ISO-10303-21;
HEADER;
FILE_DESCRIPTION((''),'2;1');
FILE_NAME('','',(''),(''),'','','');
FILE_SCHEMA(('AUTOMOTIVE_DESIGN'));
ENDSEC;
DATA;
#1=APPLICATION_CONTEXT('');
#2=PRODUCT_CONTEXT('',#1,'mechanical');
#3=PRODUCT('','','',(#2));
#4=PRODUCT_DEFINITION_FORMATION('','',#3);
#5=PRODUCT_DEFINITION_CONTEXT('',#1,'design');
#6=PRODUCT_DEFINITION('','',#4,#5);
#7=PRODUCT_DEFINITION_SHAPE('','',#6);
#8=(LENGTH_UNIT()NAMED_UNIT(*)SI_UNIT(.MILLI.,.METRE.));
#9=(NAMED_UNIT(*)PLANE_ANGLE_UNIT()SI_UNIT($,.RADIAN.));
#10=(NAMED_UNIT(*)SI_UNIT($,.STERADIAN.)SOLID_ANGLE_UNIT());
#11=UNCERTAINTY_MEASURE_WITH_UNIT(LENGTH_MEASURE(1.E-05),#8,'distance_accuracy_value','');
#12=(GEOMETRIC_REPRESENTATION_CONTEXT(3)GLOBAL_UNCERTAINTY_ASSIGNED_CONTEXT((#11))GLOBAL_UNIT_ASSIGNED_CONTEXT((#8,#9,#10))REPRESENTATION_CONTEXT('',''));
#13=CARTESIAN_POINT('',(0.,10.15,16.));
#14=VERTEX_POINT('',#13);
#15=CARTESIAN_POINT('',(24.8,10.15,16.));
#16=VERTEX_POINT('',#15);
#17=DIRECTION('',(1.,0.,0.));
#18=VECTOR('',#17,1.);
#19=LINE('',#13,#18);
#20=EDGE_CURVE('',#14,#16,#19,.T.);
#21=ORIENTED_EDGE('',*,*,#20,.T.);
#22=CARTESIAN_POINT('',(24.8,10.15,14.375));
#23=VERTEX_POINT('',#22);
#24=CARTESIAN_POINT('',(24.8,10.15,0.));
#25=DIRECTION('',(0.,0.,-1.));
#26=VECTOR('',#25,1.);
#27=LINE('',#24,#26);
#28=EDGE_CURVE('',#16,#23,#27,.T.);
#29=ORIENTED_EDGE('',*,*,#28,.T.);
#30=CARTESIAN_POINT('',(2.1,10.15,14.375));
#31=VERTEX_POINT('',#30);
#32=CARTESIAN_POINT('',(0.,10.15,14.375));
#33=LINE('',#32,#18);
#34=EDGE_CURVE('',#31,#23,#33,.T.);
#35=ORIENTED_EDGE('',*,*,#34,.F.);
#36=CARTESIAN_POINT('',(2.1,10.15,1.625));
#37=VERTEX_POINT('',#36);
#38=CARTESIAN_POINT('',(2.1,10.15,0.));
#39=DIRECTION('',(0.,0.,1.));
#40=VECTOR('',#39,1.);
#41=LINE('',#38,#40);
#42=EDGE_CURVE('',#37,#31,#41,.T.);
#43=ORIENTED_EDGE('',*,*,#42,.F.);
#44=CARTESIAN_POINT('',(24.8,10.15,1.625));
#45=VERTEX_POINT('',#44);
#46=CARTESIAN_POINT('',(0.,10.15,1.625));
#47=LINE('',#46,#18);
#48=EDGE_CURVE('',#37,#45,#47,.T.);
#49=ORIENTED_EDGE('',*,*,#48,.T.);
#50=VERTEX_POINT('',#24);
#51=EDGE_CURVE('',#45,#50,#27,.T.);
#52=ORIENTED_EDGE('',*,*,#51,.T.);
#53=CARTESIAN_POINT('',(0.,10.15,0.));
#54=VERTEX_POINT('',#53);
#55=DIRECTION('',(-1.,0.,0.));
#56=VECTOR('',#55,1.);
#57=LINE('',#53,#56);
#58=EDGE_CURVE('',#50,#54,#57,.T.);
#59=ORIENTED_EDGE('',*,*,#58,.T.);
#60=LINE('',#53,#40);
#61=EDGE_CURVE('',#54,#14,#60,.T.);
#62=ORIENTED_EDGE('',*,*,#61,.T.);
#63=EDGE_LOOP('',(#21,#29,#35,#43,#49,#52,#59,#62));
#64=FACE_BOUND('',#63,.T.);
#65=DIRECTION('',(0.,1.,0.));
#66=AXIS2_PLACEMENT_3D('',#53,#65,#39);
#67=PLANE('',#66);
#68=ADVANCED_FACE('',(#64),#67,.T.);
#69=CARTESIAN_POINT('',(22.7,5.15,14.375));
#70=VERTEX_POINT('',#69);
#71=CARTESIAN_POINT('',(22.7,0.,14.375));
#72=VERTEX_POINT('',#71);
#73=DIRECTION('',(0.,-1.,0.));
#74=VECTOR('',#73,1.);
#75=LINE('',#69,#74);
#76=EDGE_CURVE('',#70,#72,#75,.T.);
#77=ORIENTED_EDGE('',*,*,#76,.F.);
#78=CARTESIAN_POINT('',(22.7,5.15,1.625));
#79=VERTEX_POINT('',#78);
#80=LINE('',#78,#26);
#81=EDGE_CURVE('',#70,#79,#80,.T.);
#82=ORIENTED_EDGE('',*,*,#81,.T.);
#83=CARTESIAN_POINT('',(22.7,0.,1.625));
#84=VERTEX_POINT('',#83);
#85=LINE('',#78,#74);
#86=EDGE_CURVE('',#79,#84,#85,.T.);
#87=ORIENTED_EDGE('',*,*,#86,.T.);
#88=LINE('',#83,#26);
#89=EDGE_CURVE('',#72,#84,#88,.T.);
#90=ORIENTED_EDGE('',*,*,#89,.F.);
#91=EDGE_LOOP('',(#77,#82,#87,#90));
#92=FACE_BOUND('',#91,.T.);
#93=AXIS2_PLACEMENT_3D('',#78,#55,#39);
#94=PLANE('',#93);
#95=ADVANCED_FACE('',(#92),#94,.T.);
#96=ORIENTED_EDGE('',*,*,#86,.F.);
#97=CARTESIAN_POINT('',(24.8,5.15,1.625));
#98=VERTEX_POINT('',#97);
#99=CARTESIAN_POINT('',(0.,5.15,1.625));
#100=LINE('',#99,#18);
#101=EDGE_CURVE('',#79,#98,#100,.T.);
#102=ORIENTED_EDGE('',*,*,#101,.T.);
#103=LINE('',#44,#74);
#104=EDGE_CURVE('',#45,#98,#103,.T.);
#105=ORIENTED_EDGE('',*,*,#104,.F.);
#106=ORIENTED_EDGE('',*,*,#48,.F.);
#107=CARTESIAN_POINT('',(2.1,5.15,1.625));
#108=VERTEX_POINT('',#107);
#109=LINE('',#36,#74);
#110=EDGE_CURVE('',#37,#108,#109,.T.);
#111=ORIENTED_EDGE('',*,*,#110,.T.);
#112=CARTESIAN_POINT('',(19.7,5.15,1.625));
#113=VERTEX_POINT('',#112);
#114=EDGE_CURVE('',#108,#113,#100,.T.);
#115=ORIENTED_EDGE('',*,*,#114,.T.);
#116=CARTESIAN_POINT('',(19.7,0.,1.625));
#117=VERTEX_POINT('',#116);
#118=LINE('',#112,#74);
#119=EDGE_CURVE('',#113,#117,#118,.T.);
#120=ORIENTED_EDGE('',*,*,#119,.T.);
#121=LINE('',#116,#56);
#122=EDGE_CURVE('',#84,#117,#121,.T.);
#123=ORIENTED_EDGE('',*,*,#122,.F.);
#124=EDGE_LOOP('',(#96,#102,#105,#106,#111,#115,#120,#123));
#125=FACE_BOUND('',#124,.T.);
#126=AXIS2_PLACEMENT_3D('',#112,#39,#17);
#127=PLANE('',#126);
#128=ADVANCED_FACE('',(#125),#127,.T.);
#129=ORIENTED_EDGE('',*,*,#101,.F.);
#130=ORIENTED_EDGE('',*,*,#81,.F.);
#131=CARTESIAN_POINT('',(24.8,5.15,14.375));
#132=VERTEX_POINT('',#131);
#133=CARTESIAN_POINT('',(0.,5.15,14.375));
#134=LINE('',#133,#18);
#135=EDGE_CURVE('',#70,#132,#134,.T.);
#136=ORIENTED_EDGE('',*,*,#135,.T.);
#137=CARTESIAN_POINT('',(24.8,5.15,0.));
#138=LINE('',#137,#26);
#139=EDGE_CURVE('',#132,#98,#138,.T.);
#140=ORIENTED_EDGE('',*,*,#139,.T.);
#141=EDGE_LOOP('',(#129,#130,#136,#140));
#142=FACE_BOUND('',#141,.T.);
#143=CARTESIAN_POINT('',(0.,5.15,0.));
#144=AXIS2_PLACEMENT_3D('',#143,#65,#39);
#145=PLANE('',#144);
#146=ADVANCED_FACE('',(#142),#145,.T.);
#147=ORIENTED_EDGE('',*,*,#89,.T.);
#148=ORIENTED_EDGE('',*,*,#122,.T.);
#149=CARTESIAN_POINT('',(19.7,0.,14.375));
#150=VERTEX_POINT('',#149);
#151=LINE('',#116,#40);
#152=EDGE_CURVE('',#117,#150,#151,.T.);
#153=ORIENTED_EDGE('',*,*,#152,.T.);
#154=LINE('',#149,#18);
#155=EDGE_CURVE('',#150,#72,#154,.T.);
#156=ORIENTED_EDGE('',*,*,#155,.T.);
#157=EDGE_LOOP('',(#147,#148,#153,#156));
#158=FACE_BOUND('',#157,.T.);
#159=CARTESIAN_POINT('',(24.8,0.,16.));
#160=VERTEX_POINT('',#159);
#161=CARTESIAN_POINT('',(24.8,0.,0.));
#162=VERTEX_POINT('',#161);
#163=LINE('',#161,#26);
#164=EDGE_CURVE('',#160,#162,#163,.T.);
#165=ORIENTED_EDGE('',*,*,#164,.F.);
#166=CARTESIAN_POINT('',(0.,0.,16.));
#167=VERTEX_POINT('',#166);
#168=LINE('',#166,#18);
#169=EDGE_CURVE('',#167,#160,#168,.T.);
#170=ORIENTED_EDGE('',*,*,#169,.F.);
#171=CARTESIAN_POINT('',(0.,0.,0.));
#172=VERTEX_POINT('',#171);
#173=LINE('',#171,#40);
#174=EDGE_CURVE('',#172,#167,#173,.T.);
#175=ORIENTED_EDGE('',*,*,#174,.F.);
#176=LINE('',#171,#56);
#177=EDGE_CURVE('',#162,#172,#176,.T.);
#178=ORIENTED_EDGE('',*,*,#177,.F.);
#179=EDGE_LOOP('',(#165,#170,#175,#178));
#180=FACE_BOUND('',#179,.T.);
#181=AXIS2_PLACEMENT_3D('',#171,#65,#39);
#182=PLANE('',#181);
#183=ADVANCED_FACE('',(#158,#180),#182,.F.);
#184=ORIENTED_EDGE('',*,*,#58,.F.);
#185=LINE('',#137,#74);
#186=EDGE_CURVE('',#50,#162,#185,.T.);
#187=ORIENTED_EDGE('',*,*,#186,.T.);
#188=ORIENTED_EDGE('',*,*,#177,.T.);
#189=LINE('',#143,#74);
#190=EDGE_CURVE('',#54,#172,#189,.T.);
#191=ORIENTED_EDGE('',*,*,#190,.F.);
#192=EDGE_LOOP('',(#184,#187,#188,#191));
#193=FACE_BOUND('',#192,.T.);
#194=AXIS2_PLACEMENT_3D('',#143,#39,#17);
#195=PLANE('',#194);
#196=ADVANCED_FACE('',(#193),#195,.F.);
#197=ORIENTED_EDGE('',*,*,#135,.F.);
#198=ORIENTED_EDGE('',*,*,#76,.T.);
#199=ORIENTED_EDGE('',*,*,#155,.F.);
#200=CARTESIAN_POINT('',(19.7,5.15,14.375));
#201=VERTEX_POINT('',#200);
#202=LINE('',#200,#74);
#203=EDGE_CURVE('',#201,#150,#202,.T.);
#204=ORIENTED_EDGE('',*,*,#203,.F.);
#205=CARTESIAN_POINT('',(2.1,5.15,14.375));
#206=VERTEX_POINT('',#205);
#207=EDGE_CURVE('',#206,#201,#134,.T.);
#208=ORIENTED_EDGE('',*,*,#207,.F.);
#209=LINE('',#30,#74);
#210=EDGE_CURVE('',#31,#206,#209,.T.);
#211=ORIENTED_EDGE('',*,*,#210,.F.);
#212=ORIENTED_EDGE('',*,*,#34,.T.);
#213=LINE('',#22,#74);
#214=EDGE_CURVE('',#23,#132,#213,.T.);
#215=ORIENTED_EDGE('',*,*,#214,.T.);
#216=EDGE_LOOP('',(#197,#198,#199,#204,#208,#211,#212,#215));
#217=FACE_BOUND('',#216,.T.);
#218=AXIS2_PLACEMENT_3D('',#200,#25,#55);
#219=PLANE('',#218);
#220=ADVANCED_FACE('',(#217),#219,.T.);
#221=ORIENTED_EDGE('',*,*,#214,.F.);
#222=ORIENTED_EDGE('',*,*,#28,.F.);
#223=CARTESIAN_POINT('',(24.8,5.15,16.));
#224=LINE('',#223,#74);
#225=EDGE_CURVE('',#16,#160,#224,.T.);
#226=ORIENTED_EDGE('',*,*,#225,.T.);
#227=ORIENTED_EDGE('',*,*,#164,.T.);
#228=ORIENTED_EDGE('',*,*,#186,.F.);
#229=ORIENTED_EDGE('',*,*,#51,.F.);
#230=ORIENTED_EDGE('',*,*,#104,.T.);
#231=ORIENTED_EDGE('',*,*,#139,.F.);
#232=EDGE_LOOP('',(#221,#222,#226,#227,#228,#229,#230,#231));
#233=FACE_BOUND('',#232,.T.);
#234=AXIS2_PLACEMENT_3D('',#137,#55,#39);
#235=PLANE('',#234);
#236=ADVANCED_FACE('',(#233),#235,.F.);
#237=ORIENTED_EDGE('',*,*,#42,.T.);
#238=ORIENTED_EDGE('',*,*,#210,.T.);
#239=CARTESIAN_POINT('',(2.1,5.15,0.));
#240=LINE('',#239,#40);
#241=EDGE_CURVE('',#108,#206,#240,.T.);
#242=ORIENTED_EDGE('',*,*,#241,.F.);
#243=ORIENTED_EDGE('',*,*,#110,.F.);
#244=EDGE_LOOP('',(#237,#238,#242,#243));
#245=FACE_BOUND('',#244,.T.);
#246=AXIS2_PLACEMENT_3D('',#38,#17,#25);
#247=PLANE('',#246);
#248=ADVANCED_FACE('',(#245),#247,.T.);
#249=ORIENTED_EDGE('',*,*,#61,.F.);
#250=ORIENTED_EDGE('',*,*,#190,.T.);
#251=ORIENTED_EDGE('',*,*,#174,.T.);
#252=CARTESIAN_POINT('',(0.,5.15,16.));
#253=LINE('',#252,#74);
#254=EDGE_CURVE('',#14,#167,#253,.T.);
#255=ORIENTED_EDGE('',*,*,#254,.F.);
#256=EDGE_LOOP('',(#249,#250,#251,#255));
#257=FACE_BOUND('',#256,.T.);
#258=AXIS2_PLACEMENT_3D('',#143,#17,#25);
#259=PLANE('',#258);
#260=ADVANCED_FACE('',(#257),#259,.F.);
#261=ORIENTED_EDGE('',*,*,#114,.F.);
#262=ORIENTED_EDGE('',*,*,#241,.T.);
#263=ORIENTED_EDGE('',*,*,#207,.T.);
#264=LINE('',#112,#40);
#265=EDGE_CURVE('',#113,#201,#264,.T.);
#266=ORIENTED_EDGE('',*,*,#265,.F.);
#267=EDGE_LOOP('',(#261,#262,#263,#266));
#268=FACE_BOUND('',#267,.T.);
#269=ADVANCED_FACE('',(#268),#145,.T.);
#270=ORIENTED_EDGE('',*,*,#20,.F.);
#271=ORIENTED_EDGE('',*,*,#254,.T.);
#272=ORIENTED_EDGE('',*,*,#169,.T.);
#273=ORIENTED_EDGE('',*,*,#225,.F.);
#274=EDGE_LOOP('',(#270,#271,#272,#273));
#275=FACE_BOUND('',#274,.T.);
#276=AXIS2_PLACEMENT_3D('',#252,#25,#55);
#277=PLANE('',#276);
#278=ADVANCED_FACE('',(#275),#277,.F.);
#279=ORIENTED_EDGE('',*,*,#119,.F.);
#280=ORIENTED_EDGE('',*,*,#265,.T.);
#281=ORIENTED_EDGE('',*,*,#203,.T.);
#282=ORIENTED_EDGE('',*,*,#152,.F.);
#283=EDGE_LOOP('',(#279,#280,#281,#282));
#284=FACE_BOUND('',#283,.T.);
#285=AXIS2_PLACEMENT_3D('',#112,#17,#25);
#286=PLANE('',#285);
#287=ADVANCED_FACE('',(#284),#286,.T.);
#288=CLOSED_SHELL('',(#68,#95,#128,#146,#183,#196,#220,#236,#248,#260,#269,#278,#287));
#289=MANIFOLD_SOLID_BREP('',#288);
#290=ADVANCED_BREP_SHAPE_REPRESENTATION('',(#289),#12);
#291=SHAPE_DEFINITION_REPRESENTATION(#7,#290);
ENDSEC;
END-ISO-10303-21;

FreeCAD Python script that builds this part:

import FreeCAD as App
import Part
import Sketcher
from FreeCAD import Vector
Q = App.Units.Quantity

doc = App.newDocument("Part")
body = doc.addObject("PartDesign::Body", "Body")

# Sketch on XZ plane
sketch1 = body.newObject("Sketcher::SketchObject", "Sketch")
sketch1.AttachmentSupport = (doc.getObject("XZ_Plane"), [""])
sketch1.MapMode = "FlatFace"
sketch1.addGeometry(Part.LineSegment(Vector(0, 0, 0), Vector(0, 16, 0)), False)
sketch1.addGeometry(Part.LineSegment(Vector(0, 16, 0), Vector(24.8, 16, 0)), False)
sketch1.addGeometry(Part.LineSegment(Vector(24.8, 16, 0), Vector(24.8, 0, 0)), False)
sketch1.addGeometry(Part.LineSegment(Vector(24.8, 0, 0), Vector(0, 0, 0)), False)
sketch1.addGeometry(Part.LineSegment(Vector(22.7, 14.4, 0), Vector(19.7, 14.4, 0)), False)
sketch1.addGeometry(Part.LineSegment(Vector(19.7, 14.4, 0), Vector(19.7, 1.6, 0)), False)
sketch1.addGeometry(Part.LineSegment(Vector(19.7, 1.6, 0), Vector(22.7, 1.6, 0)), False)
sketch1.addGeometry(Part.LineSegment(Vector(22.7, 1.6, 0), Vector(22.7, 14.4, 0)), False)
sketch1.addConstraint(Sketcher.Constraint("Coincident", 0, 2, 1, 1))
sketch1.addConstraint(Sketcher.Constraint("Coincident", 1, 2, 2, 1))
sketch1.addConstraint(Sketcher.Constraint("Coincident", 2, 2, 3, 1))
sketch1.addConstraint(Sketcher.Constraint("Coincident", 3, 2, 0, 1))
sketch1.addConstraint(Sketcher.Constraint("Coincident", 4, 2, 5, 1))
sketch1.addConstraint(Sketcher.Constraint("Coincident", 5, 2, 6, 1))
sketch1.addConstraint(Sketcher.Constraint("Coincident", 6, 2, 7, 1))
sketch1.addConstraint(Sketcher.Constraint("Coincident", 7, 2, 4, 1))
sketch1.addConstraint(Sketcher.Constraint("Vertical", 0))
sketch1.addConstraint(Sketcher.Constraint("Horizontal", 1))
sketch1.addConstraint(Sketcher.Constraint("Vertical", 2))
sketch1.addConstraint(Sketcher.Constraint("Horizontal", 3))
sketch1.addConstraint(Sketcher.Constraint("Horizontal", 4))
sketch1.addConstraint(Sketcher.Constraint("Vertical", 5))
sketch1.addConstraint(Sketcher.Constraint("Horizontal", 6))
sketch1.addConstraint(Sketcher.Constraint("Vertical", 7))
sketch1.addConstraint(Sketcher.Constraint("Coincident", 3, 2, -1, 1))
sketch1.addConstraint(Sketcher.Constraint("DistanceX", 4, 2, 4, 1, Q("3 mm")))
sketch1.addConstraint(Sketcher.Constraint("DistanceY", 0, 1, 0, 2, Q("16 mm")))
sketch1.addConstraint(Sketcher.Constraint("DistanceX", 1, 1, 1, 2, Q("24.8 mm")))
sketch1.addConstraint(Sketcher.Constraint("DistanceY", 5, 2, 5, 1, Q("12.75 mm")))
sketch1.addConstraint(Sketcher.Constraint("DistanceX", -1, 1, 4, 2, Q("19.7 mm")))
sketch1.addConstraint(Sketcher.Constraint("DistanceY", -1, 1, 4, 2, Q("14.375 mm")))
pad1 = body.newObject("PartDesign::Pad", "Pad")
pad1.Profile = sketch1
pad1.Length = 5.15
pad1.Reversed = True

# Sketch on XZ plane
sketch2 = body.newObject("Sketcher::SketchObject", "Sketch001")
sketch2.AttachmentSupport = (doc.getObject("XZ_Plane"), [""])
sketch2.MapMode = "FlatFace"
sketch2.AttachmentOffset = App.Placement(Vector(0, 0, -5.15), App.Rotation())
sketch2.addGeometry(Part.LineSegment(Vector(2.1, 1.6, 0), Vector(24.8, 1.6, 0)), False)
sketch2.addGeometry(Part.LineSegment(Vector(24.8, 1.6, 0), Vector(24.8, 0, 0)), False)
sketch2.addGeometry(Part.LineSegment(Vector(24.8, 0, 0), Vector(0, 0, 0)), False)
sketch2.addGeometry(Part.LineSegment(Vector(0, 0, 0), Vector(0, 16, 0)), False)
sketch2.addGeometry(Part.LineSegment(Vector(0, 16, 0), Vector(24.8, 16, 0)), False)
sketch2.addGeometry(Part.LineSegment(Vector(24.8, 16, 0), Vector(24.8, 14.4, 0)), False)
sketch2.addGeometry(Part.LineSegment(Vector(24.8, 14.4, 0), Vector(2.1, 14.4, 0)), False)
sketch2.addGeometry(Part.LineSegment(Vector(2.1, 14.4, 0), Vector(2.1, 1.6, 0)), False)
sketch2.addConstraint(Sketcher.Constraint("Coincident", 0, 2, 1, 1))
sketch2.addConstraint(Sketcher.Constraint("Coincident", 1, 2, 2, 1))
sketch2.addConstraint(Sketcher.Constraint("Coincident", 2, 2, 3, 1))
sketch2.addConstraint(Sketcher.Constraint("Coincident", 3, 2, 4, 1))
sketch2.addConstraint(Sketcher.Constraint("Coincident", 4, 2, 5, 1))
sketch2.addConstraint(Sketcher.Constraint("Coincident", 5, 2, 6, 1))
sketch2.addConstraint(Sketcher.Constraint("Coincident", 6, 2, 7, 1))
sketch2.addConstraint(Sketcher.Constraint("Coincident", 7, 2, 0, 1))
sketch2.addConstraint(Sketcher.Constraint("Horizontal", 0))
sketch2.addConstraint(Sketcher.Constraint("Vertical", 1))
sketch2.addConstraint(Sketcher.Constraint("Horizontal", 2))
sketch2.addConstraint(Sketcher.Constraint("Vertical", 3))
sketch2.addConstraint(Sketcher.Constraint("Horizontal", 4))
sketch2.addConstraint(Sketcher.Constraint("Vertical", 5))
sketch2.addConstraint(Sketcher.Constraint("Horizontal", 6))
sketch2.addConstraint(Sketcher.Constraint("Vertical", 7))
sketch2.addConstraint(Sketcher.Constraint("Coincident", 2, 2, -1, 1))
sketch2.addConstraint(Sketcher.Constraint("Vertical", 1, 2, 4, 2))
sketch2.addConstraint(Sketcher.Constraint("Equal", 1, 5))
sketch2.addConstraint(Sketcher.Constraint("DistanceY", 3, 1, 3, 2, Q("16 mm")))
sketch2.addConstraint(Sketcher.Constraint("DistanceX", 0, 1, 0, 2, Q("22.7 mm")))
sketch2.addConstraint(Sketcher.Constraint("DistanceX", 2, 2, 2, 1, Q("24.8 mm")))
sketch2.addConstraint(Sketcher.Constraint("DistanceY", 7, 2, 7, 1, Q("12.75 mm")))
pad2 = body.newObject("PartDesign::Pad", "Pad001")
pad2.Profile = sketch2
pad2.Length = 5
pad2.Reversed = True

doc.recompute()
